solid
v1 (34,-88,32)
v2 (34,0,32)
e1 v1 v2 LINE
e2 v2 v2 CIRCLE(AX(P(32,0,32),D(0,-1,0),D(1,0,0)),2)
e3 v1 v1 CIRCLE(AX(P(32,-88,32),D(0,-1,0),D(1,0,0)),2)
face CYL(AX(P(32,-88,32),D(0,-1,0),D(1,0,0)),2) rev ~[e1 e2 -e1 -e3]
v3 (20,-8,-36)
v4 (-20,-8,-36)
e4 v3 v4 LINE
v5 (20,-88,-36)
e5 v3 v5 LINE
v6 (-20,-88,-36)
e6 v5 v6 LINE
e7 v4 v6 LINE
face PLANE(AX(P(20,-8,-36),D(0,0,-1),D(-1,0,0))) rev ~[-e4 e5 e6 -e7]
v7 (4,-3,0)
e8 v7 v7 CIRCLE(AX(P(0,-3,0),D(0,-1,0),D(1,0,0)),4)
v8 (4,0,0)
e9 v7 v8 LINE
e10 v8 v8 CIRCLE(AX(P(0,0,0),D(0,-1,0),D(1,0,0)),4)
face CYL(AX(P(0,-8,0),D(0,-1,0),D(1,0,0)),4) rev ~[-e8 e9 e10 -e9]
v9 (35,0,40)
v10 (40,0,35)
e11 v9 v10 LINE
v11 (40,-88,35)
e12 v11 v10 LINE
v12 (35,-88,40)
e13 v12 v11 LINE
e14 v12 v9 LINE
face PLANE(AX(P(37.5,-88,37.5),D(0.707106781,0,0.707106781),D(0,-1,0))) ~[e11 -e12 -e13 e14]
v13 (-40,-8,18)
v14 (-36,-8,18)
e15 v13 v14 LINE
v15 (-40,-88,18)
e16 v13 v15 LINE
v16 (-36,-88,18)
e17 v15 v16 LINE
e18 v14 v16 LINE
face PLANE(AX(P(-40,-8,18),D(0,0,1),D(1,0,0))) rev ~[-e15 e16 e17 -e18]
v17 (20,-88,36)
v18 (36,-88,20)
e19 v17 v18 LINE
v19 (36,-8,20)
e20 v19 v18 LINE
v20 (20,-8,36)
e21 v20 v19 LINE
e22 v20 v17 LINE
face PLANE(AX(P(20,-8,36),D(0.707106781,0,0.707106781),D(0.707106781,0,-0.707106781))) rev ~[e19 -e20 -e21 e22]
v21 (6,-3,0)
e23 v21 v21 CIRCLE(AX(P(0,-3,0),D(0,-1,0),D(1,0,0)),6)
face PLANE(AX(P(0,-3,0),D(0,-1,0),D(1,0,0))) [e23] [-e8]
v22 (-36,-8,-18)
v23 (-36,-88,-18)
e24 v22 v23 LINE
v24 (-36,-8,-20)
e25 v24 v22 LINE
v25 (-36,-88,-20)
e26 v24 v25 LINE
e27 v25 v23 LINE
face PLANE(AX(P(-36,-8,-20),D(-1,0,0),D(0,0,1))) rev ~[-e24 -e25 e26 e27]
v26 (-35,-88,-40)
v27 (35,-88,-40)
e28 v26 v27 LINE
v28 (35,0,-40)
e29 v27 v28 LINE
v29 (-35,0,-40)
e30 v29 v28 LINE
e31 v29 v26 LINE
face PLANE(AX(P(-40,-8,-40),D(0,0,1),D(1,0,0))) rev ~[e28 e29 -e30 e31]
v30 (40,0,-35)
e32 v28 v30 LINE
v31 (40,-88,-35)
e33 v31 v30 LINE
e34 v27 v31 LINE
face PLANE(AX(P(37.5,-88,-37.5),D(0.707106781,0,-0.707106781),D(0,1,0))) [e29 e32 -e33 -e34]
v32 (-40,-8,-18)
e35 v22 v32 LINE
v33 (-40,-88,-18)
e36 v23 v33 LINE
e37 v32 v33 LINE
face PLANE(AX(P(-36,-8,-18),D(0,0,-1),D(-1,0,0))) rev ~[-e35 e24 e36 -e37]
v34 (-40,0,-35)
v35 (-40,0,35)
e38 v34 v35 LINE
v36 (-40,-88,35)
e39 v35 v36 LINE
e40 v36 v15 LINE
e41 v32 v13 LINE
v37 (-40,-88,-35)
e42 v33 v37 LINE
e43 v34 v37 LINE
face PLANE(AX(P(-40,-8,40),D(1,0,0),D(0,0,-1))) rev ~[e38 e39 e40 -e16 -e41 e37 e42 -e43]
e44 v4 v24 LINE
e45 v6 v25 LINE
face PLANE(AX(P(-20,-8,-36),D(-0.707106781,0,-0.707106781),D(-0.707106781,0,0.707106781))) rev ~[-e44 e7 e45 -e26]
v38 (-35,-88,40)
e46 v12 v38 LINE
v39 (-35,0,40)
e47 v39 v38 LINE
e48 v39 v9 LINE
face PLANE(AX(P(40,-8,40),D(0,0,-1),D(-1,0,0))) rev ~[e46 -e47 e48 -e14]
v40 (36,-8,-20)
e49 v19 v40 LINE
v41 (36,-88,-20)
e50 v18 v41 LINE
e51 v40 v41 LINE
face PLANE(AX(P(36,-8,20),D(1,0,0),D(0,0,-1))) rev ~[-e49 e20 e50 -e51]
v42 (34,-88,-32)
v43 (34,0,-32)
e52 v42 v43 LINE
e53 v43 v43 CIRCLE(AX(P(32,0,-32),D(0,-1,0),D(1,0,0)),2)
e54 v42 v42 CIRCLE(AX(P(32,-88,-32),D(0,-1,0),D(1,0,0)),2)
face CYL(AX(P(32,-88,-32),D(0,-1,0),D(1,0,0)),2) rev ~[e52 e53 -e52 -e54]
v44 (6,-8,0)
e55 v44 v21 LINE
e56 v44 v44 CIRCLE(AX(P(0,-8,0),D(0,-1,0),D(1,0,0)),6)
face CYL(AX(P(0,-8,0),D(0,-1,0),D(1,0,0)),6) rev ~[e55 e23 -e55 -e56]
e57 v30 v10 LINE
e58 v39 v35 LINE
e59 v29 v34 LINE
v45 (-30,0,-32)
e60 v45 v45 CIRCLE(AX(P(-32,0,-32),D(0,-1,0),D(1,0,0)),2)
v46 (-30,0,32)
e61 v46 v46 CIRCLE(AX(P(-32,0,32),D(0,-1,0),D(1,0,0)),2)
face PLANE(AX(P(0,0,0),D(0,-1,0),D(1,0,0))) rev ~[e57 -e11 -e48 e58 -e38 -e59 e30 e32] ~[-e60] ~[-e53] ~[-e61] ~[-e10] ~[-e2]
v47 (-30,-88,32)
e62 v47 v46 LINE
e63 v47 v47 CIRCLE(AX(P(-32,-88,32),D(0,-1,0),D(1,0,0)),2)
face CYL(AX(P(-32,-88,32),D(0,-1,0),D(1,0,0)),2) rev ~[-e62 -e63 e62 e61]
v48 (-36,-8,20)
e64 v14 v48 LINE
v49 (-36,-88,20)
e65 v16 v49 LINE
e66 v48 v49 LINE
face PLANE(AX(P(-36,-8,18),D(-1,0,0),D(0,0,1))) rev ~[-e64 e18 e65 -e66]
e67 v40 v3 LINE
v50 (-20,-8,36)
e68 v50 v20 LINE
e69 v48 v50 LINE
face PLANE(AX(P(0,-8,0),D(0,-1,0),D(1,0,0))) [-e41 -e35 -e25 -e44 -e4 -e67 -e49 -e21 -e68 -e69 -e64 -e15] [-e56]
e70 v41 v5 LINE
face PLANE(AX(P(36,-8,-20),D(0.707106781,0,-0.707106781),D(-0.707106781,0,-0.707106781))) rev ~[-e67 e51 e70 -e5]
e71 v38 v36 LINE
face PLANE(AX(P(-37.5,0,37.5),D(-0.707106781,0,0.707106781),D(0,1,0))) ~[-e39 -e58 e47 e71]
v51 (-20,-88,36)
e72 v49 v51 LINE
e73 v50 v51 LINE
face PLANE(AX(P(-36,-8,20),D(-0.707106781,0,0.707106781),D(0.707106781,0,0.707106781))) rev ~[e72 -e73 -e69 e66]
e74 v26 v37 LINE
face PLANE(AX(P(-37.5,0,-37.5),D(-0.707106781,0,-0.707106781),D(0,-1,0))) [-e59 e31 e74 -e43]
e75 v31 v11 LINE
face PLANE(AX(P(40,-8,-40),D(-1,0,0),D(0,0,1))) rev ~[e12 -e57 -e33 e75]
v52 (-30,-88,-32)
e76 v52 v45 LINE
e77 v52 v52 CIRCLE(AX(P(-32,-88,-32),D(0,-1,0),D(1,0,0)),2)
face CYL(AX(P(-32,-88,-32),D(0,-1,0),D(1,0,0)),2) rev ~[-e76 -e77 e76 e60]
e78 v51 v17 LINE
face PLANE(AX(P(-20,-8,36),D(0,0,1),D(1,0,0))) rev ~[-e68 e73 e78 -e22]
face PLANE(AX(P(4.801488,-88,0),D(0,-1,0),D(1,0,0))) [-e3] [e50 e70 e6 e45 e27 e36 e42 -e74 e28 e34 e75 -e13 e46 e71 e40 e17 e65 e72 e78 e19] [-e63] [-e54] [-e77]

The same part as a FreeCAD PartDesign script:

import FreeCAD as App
import Part
import Sketcher
Q = App.Units.Quantity


def edges_at(feature, points):
    """Names of the edges that pass closest to the given points."""
    edges = feature.Shape.Edges
    near = lambda p: min(range(len(edges)), key=lambda i: edges[i].distToShape(Part.Vertex(*p))[0])
    return sorted({f"Edge{near(p) + 1}" for p in points})


def add_polygon(sketch, points):
    """Adds a closed chain of lines whose ends are joined by coincident constraints."""
    first, n = sketch.GeometryCount, len(points)
    for a, b in zip(points, points[1:] + points[:1]):
        sketch.addGeometry(Part.LineSegment(App.Vector(*a, 0), App.Vector(*b, 0)), False)
    for i in range(n):
        sketch.addConstraint(Sketcher.Constraint("Coincident", first + i, 2, first + (i + 1) % n, 1))

doc = App.newDocument("Part")
body = doc.addObject("PartDesign::Body", "Body")

# Sketch on XZ plane
sketch1 = body.newObject("Sketcher::SketchObject", "Sketch")
sketch1.AttachmentSupport = (doc.getObject("XZ_Plane"), [""])
sketch1.MapMode = "FlatFace"
add_polygon(sketch1, [(-40, 40), (-40, -40), (40, -40), (40, 40)])  # lines 0-3
sketch1.addConstraint([
    Sketcher.Constraint("Vertical", 0),
    Sketcher.Constraint("Horizontal", 1),
    Sketcher.Constraint("Vertical", 2),
    Sketcher.Constraint("Horizontal", 3),
    Sketcher.Constraint("Symmetric", 0, 2, 2, 2, -1, 1),
    Sketcher.Constraint("Equal", 3, 0),
    Sketcher.Constraint("DistanceX", 1, 1, 1, 2, Q("80 mm")),
])
pad1 = body.newObject("PartDesign::Pad", "Pad")
pad1.Profile = sketch1
pad1.Length = 8

# Sketch on XZ plane
sketch2 = body.newObject("Sketcher::SketchObject", "Sketch001")
sketch2.AttachmentSupport = (doc.getObject("XZ_Plane"), [""])
sketch2.MapMode = "FlatFace"
sketch2.AttachmentOffset = App.Placement(App.Vector(0, 0, 8), App.Rotation())
sketch2.addGeometry(Part.Circle(App.Vector(0, 0, 0), App.Vector(0, 0, 1), 4), False)
sketch2.addConstraint([
    Sketcher.Constraint("Coincident", 0, 3, -1, 1),
    Sketcher.Constraint("Diameter", 0, Q("8 mm")),
])
pocket1 = body.newObject("PartDesign::Pocket", "Pocket")
pocket1.Profile = sketch2
pocket1.Type = "ThroughAll"

# Sketch on XZ plane
sketch3 = body.newObject("Sketcher::SketchObject", "Sketch002")
sketch3.AttachmentSupport = (doc.getObject("XZ_Plane"), [""])
sketch3.MapMode = "FlatFace"
sketch3.AttachmentOffset = App.Placement(App.Vector(0, 0, 8), App.Rotation())
add_polygon(sketch3, [(40, 40), (-40, 40), (-40, 18), (-36, 18), (-36, 20), (-20, 36), (20, 36), (36, 20), (36, -20), (20, -36), (-20, -36), (-36, -20), (-36, -18), (-40, -18), (-40, -40), (40, -40)])  # lines 0-15
sketch3.addConstraint([
    Sketcher.Constraint("Horizontal", 0),
    Sketcher.Constraint("Vertical", 1),
    Sketcher.Constraint("Horizontal", 2),
    Sketcher.Constraint("Vertical", 3),
    Sketcher.Constraint("Horizontal", 5),
    Sketcher.Constraint("Vertical", 7),
    Sketcher.Constraint("Horizontal", 9),
    Sketcher.Constraint("Vertical", 11),
    Sketcher.Constraint("Horizontal", 12),
    Sketcher.Constraint("Vertical", 13),
    Sketcher.Constraint("Horizontal", 14),
    Sketcher.Constraint("Vertical", 15),
    Sketcher.Constraint("Symmetric", 3, 2, 7, 2, -1, 1),
    Sketcher.Constraint("Symmetric", 4, 2, 8, 2, -1, 1),
    Sketcher.Constraint("Symmetric", 6, 2, 10, 2, -1, 1),
    Sketcher.Constraint("Symmetric", 0, 2, 14, 2, -1, 1),
    Sketcher.Constraint("Symmetric", 1, 2, 12, 2, -1),
    Sketcher.Constraint("Perpendicular", 4, 6),
    Sketcher.Constraint("Perpendicular", 8, 10),
    Sketcher.Constraint("Horizontal", 3, 2, 6, 2),
    Sketcher.Constraint("Vertical", 5, 2, 8, 2),
    Sketcher.Constraint("Equal", 9, 7),
    Sketcher.Constraint("Equal", 14, 15),
    Sketcher.Constraint("DistanceX", 0, 2, 0, 1, Q("80 mm")),
    Sketcher.Constraint("DistanceX", 2, 1, 2, 2, Q("4 mm")),
    Sketcher.Constraint("DistanceX", 5, 1, 5, 2, Q("40 mm")),
    Sketcher.Constraint("DistanceY", 1, 2, 1, 1, Q("22 mm")),
])
pad2 = body.newObject("PartDesign::Pad", "Pad001")
pad2.Profile = sketch3
pad2.Length = 80
doc.recompute()

chamfer = body.newObject("PartDesign::Chamfer", "Chamfer")
chamfer.Base = (pad2, edges_at(pad2, [
    (-40, -44, 40),
    (40, -44, 40),
    (-40, -44, -40),
    (40, -44, -40),
]))
chamfer.Size = 5

# Sketch on XZ plane
sketch4 = body.newObject("Sketcher::SketchObject", "Sketch003")
sketch4.AttachmentSupport = (doc.getObject("XZ_Plane"), [""])
sketch4.MapMode = "FlatFace"
sketch4.AttachmentOffset = App.Placement(App.Vector(0, 0, 88), App.Rotation())
sketch4.addGeometry([
    Part.Circle(App.Vector(-32, 32, 0), App.Vector(0, 0, 1), 2),
    Part.Circle(App.Vector(-32, -32, 0), App.Vector(0, 0, 1), 2),
    Part.Circle(App.Vector(32, -32, 0), App.Vector(0, 0, 1), 2),
    Part.Circle(App.Vector(32, 32, 0), App.Vector(0, 0, 1), 2),
], False)
sketch4.addConstraint([
    Sketcher.Constraint("Equal", 0, 1),
    Sketcher.Constraint("Equal", 1, 2),
    Sketcher.Constraint("Equal", 2, 3),
    Sketcher.Constraint("Symmetric", 0, 3, 2, 3, -1, 1),
    Sketcher.Constraint("Symmetric", 1, 3, 3, 3, -1, 1),
    Sketcher.Constraint("Symmetric", 1, 3, 2, 3, -2),
    Sketcher.Constraint("Diameter", 0, Q("4 mm")),
    Sketcher.Constraint("DistanceX", 0, 3, -1, 1, Q("32 mm")),
    Sketcher.Constraint("DistanceY", -1, 1, 0, 3, Q("32 mm")),
])
pocket2 = body.newObject("PartDesign::Pocket", "Pocket001")
pocket2.Profile = sketch4
pocket2.Type = "ThroughAll"

# Sketch on XZ plane
sketch5 = body.newObject("Sketcher::SketchObject", "Sketch004")
sketch5.AttachmentSupport = (doc.getObject("XZ_Plane"), [""])
sketch5.MapMode = "FlatFace"
sketch5.AttachmentOffset = App.Placement(App.Vector(0, 0, 8), App.Rotation())
sketch5.addGeometry(Part.Circle(App.Vector(0, 0, 0), App.Vector(0, 0, 1), 6), False)
sketch5.addConstraint([
    Sketcher.Constraint("Coincident", 0, 3, -1, 1),
    Sketcher.Constraint("Diameter", 0, Q("12 mm")),
])
pocket3 = body.newObject("PartDesign::Pocket", "Pocket002")
pocket3.Profile = sketch5
pocket3.Length = 5

doc.recompute()
